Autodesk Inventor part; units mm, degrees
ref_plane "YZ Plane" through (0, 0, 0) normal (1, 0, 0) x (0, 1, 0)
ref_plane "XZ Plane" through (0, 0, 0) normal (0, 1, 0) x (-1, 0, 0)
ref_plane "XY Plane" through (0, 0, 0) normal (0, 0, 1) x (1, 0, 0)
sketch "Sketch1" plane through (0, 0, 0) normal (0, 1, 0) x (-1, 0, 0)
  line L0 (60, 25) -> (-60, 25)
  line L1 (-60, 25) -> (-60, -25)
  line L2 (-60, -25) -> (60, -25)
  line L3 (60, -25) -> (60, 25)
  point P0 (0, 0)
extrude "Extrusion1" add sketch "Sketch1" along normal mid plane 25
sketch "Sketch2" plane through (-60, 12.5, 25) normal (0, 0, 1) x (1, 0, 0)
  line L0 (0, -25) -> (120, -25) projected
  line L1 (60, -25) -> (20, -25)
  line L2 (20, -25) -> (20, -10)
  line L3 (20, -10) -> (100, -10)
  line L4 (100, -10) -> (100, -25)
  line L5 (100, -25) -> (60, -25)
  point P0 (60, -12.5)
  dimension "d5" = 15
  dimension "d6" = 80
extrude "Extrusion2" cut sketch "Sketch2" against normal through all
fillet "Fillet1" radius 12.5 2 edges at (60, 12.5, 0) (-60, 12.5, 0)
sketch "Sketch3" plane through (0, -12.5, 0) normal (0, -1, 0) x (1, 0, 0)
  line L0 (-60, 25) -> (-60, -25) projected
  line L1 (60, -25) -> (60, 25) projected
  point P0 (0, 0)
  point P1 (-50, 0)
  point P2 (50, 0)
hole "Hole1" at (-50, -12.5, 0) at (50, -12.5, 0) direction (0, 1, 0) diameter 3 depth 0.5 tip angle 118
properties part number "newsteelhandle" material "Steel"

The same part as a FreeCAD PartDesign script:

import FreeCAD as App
import Part
import Sketcher
from FreeCAD import Vector
Q = App.Units.Quantity


def edges_at(feature, points):
    """Names of the edges that pass closest to the given points."""
    edges = feature.Shape.Edges
    near = lambda p: min(range(len(edges)), key=lambda i: edges[i].distToShape(Part.Vertex(*p))[0])
    return sorted({f"Edge{near(p) + 1}" for p in points})


def add_polygon(sketch, points):
    """Adds a closed chain of lines whose ends are joined by coincident constraints."""
    first, n = sketch.GeometryCount, len(points)
    for a, b in zip(points, points[1:] + points[:1]):
        sketch.addGeometry(Part.LineSegment(App.Vector(*a, 0), App.Vector(*b, 0)), False)
    for i in range(n):
        sketch.addConstraint(Sketcher.Constraint("Coincident", first + i, 2, first + (i + 1) % n, 1))

doc = App.newDocument("Part")
body = doc.addObject("PartDesign::Body", "Body")

sketch1 = doc.addObject("Sketcher::SketchObject", "Sketch")
body.addObject(sketch1)
sketch1.AttachmentSupport = (doc.XZ_Plane, [""])
sketch1.MapMode = "FlatFace"
add_polygon(sketch1, [(-60, -25), (-60, 25), (60, 25), (60, -25)])
sketch1.addConstraint([
    Sketcher.Constraint("Vertical", 0),
    Sketcher.Constraint("Horizontal", 1),
    Sketcher.Constraint("Vertical", 2),
    Sketcher.Constraint("Horizontal", 3),
    Sketcher.Constraint("Symmetric", 0, 2, 2, 2, -1, 1),
    Sketcher.Constraint("DistanceX", 1, 1, 1, 2, Q("120 mm")),
    Sketcher.Constraint("DistanceY", 0, 1, 0, 2, Q("50 mm")),
])
pad1 = doc.addObject("PartDesign::Pad", "Pad")
body.addObject(pad1)
pad1.Profile = sketch1
pad1.Length = 25
pad1.Midplane = True

sketch2 = doc.addObject("Sketcher::SketchObject", "Sketch001")
body.addObject(sketch2)
sketch2.AttachmentSupport = (doc.XY_Plane, [""])
sketch2.MapMode = "FlatFace"
sketch2.AttachmentOffset = App.Placement(Vector(0, 0, 25), App.Rotation())
add_polygon(sketch2, [(-40, 2.5), (-40, -12.5), (40, -12.5), (40, 2.5)])
sketch2.addConstraint([
    Sketcher.Constraint("Vertical", 0),
    Sketcher.Constraint("Horizontal", 1),
    Sketcher.Constraint("Vertical", 2),
    Sketcher.Constraint("Horizontal", 3),
    Sketcher.Constraint("DistanceX", 1, 1, 1, 2, Q("80 mm")),
    Sketcher.Constraint("DistanceY", 0, 2, 0, 1, Q("15 mm")),
    Sketcher.Constraint("DistanceX", 0, 2, -1, 1, Q("40 mm")),
    Sketcher.Constraint("DistanceY", 0, 2, -1, 1, Q("12.5 mm")),
])
pocket1 = doc.addObject("PartDesign::Pocket", "Pocket")
body.addObject(pocket1)
pocket1.Profile = sketch2
pocket1.Type = "ThroughAll"
doc.recompute()

fillet = doc.addObject("PartDesign::Fillet", "Fillet")
body.addObject(fillet)
fillet.Base = (pocket1, edges_at(pocket1, [(60, 12.5, 0), (-60, 12.5, 0)]))
fillet.Radius = 12.5

sketch3 = doc.addObject("Sketcher::SketchObject", "Sketch002")
body.addObject(sketch3)
sketch3.AttachmentSupport = (doc.XZ_Plane, [""])
sketch3.MapMode = "FlatFace"
sketch3.AttachmentOffset = App.Placement(Vector(0, 0, 12.5), App.Rotation())
sketch3.addGeometry([
    Part.Circle(Vector(-50, 0, 0), Vector(0, 0, 1), 1.5),
    Part.Circle(Vector(50, 0, 0), Vector(0, 0, 1), 1.5),
], False)
sketch3.addConstraint([
    Sketcher.Constraint("Equal", 0, 1),
    Sketcher.Constraint("Symmetric", 0, 3, 1, 3, -1, 1),
    Sketcher.Constraint("PointOnObject", 0, 3, -1),
    Sketcher.Constraint("Diameter", 0, Q("3 mm")),
    Sketcher.Constraint("DistanceX", 0, 3, -1, 1, Q("50 mm")),
])
doc.recompute()
hole = doc.addObject("PartDesign::Hole", "Hole")
body.addObject(hole)
hole.Profile = sketch3
hole.ThreadType = "None"
hole.Diameter = 3
hole.DepthType = "Dimension"
hole.Depth = 0.5
hole.DrillPoint = "Angled"
hole.DrillPointAngle = 118

doc.recompute()
